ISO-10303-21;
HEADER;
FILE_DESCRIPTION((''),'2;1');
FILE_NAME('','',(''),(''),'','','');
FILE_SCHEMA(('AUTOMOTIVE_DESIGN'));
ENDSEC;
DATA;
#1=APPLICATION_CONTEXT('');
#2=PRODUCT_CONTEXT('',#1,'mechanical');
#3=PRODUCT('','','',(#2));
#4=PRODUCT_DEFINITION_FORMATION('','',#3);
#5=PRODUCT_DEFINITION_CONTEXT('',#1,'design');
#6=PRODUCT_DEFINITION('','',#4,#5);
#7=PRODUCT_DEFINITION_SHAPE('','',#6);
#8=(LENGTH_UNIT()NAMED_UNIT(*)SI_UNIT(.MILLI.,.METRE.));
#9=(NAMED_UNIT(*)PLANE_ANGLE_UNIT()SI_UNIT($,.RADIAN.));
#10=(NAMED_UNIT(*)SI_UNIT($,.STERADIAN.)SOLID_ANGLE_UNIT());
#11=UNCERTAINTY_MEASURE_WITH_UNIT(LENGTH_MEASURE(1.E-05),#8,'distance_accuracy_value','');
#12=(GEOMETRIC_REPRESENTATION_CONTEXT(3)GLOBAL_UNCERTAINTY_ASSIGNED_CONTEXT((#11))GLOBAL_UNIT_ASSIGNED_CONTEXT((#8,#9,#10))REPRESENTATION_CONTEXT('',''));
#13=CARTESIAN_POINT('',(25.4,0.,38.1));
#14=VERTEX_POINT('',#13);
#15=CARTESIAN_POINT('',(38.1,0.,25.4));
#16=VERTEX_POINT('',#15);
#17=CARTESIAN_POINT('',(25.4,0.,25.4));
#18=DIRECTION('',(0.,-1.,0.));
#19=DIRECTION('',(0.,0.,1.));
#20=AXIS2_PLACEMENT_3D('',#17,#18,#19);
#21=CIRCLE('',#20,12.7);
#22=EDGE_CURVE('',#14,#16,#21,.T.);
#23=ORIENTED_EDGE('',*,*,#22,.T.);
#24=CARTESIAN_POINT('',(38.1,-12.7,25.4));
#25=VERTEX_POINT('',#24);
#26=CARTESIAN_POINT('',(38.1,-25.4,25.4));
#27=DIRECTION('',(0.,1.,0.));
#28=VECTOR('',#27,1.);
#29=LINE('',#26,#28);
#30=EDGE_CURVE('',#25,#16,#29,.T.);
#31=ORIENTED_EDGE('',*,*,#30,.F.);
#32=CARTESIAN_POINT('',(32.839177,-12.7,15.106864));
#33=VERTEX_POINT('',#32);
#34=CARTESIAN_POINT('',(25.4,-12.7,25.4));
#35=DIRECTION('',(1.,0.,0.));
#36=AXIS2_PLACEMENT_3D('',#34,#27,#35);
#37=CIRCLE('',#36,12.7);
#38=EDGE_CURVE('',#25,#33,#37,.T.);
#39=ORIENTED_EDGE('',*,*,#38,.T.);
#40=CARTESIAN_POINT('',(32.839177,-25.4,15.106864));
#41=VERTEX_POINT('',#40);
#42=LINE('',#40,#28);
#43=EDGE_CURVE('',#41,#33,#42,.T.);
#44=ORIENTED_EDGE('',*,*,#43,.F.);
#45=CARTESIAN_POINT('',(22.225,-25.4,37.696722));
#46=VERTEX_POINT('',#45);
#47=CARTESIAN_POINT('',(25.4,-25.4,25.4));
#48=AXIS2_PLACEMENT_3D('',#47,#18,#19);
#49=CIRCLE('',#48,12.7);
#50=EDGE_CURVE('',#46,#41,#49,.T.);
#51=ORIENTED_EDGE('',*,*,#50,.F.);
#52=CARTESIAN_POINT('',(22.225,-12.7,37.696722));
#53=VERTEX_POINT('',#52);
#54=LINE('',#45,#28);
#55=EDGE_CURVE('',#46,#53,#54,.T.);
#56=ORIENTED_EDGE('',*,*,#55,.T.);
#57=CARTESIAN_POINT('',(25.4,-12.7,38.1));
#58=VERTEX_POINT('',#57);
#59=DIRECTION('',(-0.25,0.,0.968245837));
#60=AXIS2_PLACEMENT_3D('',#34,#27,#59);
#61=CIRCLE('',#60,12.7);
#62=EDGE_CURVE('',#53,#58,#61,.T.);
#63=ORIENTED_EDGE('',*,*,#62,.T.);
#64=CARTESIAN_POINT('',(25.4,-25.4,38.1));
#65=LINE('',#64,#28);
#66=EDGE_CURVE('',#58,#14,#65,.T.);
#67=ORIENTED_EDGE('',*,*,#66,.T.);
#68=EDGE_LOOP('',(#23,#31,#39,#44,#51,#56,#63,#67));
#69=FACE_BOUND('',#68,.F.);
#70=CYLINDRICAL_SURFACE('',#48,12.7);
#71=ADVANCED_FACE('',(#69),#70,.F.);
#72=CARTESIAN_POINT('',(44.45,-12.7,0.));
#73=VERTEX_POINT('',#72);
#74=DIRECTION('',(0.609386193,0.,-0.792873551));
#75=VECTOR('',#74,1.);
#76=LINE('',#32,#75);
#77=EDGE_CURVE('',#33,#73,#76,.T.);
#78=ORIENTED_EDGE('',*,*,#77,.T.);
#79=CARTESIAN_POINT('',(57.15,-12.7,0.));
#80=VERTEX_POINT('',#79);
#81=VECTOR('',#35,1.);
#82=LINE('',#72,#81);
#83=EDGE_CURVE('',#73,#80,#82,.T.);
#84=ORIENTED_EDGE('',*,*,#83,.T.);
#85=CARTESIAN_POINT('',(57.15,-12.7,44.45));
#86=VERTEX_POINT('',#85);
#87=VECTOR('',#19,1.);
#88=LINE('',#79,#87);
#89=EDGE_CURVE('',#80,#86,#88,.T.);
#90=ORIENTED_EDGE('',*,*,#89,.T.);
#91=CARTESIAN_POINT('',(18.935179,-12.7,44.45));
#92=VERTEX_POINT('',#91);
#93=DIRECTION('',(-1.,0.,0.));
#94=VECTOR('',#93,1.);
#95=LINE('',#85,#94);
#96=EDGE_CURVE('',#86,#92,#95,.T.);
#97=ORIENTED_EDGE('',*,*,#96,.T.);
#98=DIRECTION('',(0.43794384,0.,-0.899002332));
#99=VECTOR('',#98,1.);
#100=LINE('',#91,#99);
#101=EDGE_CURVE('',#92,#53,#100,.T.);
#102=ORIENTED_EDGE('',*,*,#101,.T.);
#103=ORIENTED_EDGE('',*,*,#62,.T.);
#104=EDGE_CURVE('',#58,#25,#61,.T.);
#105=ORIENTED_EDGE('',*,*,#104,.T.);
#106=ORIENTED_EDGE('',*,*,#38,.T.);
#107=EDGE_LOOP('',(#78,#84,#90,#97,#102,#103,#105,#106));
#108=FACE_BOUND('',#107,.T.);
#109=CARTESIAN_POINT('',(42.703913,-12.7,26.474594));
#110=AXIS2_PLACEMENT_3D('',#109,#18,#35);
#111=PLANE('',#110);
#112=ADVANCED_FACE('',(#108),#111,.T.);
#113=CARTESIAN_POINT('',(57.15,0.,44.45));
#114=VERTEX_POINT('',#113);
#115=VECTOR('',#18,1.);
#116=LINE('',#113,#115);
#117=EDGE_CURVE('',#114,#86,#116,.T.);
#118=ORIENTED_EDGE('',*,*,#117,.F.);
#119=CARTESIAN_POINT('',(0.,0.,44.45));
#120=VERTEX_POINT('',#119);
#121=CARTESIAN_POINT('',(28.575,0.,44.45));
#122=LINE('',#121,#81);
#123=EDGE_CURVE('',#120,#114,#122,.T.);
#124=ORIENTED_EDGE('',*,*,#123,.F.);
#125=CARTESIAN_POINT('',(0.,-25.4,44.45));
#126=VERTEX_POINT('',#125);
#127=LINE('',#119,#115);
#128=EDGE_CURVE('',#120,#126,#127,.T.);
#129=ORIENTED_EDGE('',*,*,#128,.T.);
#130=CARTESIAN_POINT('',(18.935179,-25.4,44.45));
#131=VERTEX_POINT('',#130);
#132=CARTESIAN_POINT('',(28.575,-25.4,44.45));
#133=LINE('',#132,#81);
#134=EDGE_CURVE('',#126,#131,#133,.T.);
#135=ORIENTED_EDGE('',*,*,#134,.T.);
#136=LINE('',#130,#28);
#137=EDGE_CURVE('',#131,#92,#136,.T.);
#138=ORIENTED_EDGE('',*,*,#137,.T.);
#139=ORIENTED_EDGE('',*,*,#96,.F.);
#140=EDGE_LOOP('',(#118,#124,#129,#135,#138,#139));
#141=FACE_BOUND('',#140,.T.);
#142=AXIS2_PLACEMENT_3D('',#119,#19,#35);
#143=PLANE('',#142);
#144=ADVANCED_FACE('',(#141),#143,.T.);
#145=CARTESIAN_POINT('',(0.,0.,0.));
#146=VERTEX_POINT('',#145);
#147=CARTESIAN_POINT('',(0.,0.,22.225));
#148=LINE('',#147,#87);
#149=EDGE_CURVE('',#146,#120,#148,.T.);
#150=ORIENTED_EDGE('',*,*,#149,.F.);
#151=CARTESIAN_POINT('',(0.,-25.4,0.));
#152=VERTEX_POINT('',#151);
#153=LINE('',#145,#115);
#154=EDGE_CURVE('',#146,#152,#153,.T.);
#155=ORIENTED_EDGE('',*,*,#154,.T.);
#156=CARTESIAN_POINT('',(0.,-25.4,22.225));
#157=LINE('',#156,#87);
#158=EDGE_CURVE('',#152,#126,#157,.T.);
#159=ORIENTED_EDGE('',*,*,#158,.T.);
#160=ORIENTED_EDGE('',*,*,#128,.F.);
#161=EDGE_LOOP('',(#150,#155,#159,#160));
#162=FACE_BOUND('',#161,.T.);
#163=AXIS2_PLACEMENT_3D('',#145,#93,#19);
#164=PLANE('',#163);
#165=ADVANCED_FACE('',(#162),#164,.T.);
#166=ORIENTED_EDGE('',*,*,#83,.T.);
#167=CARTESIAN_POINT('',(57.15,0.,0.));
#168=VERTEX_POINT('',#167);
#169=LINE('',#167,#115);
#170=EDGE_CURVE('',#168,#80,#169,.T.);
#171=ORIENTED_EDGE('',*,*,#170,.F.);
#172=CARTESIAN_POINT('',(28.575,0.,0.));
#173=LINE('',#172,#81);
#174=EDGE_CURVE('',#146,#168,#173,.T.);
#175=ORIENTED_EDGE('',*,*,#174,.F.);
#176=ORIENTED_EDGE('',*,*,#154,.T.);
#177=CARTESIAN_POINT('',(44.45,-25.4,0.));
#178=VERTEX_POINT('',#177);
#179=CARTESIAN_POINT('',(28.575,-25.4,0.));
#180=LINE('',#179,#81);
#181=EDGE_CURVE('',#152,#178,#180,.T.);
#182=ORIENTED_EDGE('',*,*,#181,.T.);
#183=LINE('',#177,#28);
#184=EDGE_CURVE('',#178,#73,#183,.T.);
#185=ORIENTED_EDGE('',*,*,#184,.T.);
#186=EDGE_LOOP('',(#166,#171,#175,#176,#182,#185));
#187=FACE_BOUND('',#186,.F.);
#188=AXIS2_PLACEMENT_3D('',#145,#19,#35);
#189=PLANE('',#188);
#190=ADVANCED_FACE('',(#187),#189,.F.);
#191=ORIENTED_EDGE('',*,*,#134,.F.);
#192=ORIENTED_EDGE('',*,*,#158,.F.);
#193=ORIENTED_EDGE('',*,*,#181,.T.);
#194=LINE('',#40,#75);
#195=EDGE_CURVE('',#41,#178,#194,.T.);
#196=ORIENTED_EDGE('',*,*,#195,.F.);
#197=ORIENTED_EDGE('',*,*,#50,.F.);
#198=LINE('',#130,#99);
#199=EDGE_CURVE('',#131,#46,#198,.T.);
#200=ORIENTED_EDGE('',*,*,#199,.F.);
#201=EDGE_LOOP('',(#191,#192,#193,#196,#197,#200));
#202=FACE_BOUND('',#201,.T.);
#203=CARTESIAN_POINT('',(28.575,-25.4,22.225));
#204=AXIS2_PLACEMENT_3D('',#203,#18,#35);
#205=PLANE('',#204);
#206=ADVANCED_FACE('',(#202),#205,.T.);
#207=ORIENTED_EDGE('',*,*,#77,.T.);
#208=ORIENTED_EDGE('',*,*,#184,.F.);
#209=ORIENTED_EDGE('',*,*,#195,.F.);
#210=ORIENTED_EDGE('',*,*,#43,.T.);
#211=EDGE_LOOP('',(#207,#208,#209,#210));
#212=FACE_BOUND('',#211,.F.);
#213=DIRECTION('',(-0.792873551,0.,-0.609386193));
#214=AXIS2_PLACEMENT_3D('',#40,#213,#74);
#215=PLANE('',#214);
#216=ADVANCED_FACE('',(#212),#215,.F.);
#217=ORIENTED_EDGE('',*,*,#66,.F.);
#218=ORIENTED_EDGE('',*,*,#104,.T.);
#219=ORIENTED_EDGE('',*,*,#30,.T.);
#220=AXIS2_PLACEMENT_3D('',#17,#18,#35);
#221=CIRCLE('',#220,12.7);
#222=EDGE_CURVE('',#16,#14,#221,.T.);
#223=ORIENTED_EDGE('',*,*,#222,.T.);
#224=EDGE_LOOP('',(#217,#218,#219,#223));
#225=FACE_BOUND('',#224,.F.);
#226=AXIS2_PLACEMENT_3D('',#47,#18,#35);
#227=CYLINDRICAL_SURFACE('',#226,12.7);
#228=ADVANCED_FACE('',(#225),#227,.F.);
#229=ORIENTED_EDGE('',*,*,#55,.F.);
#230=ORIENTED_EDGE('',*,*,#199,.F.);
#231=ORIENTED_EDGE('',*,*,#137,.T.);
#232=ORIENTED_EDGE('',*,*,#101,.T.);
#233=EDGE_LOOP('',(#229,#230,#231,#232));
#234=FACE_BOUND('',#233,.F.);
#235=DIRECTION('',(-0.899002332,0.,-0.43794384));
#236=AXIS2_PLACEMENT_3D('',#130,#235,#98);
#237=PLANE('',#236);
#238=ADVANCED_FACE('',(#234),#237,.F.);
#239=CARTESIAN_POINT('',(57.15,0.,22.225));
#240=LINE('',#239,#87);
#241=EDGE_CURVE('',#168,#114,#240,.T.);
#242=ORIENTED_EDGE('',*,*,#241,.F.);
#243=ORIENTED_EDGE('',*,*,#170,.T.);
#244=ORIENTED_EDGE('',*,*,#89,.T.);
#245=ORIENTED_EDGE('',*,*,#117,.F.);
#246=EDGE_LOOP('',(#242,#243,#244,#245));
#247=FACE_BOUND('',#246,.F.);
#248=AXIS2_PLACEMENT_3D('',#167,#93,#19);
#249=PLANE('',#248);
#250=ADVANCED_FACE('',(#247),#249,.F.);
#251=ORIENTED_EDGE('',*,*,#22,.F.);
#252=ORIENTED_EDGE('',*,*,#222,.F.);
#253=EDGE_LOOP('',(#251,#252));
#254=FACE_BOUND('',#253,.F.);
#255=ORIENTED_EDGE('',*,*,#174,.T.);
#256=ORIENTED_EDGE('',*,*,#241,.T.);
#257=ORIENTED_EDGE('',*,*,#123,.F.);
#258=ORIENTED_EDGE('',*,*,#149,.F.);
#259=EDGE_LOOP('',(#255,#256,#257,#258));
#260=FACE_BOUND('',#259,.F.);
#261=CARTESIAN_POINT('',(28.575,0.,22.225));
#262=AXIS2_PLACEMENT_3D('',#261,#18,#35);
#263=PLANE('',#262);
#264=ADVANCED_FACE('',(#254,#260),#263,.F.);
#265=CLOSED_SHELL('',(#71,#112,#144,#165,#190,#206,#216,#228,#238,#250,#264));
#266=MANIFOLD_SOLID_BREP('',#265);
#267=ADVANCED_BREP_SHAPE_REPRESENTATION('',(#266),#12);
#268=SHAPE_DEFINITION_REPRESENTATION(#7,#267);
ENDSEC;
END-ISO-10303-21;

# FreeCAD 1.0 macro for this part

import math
import FreeCAD as App
import Part
import Sketcher

V = App.Vector
Q = App.Units.Quantity


def add_polygon(sketch, points):
    """Adds a closed chain of lines whose ends are joined by coincident constraints."""
    first, n = sketch.GeometryCount, len(points)
    for a, b in zip(points, points[1:] + points[:1]):
        sketch.addGeometry(Part.LineSegment(App.Vector(*a, 0), App.Vector(*b, 0)), False)
    for i in range(n):
        sketch.addConstraint(Sketcher.Constraint("Coincident", first + i, 2, first + (i + 1) % n, 1))

doc = App.newDocument("Part")
body = doc.addObject("PartDesign::Body", "Body")

sketch1 = doc.addObject("Sketcher::SketchObject", "Sketch")
body.addObject(sketch1)
sketch1.AttachmentSupport = (doc.XZ_Plane, [""])
sketch1.MapMode = "FlatFace"
add_polygon(sketch1, [(0, 44), (0, 0), (57, 0), (57, 44)])
sketch1.addConstraint([
    Sketcher.Constraint("Vertical", 0),
    Sketcher.Constraint("Horizontal", 1),
    Sketcher.Constraint("Vertical", 2),
    Sketcher.Constraint("Horizontal", 3),
    Sketcher.Constraint("Coincident", 0, 2, -1, 1),
    Sketcher.Constraint("DistanceX", 1, 1, 1, 2, Q("2.25 in")),
    Sketcher.Constraint("DistanceY", 0, 2, 0, 1, Q("1.75 in")),
])
pad1 = doc.addObject("PartDesign::Pad", "Pad")
body.addObject(pad1)
pad1.Profile = sketch1
pad1.Length = Q("1 in")

sketch2 = doc.addObject("Sketcher::SketchObject", "Sketch001")
body.addObject(sketch2)
sketch2.AttachmentSupport = (doc.XZ_Plane, [""])
sketch2.MapMode = "FlatFace"
sketch2.AttachmentOffset = App.Placement(V(0, 0, 1 * 25.4), App.Rotation())
sketch2.addGeometry([
    Part.ArcOfCircle(Part.Circle(V(25, 25, 0), V(0, 0, 1), 13), math.radians(90), math.radians(360)),
    Part.ArcOfCircle(Part.Circle(V(25, 25, 0), V(0, 0, 1), 13), math.radians(0), math.radians(90)),
], False)
sketch2.addConstraint([
    Sketcher.Constraint("Tangent", 0, 1, 1, 2),
    Sketcher.Constraint("Coincident", 1, 1, 0, 2),
    Sketcher.Constraint("Horizontal", 0, 3, 1, 1),
    Sketcher.Constraint("Vertical", 1, 3, 0, 1),
    Sketcher.Constraint("Radius", 0, Q("0.5 in")),
    Sketcher.Constraint("DistanceX", -1, 1, 0, 3, Q("1 in")),
    Sketcher.Constraint("DistanceY", -1, 1, 0, 3, Q("1 in")),
])
pocket1 = doc.addObject("PartDesign::Pocket", "Pocket")
body.addObject(pocket1)
pocket1.Profile = sketch2
pocket1.Type = "ThroughAll"

sketch3 = doc.addObject("Sketcher::SketchObject", "Sketch002")
body.addObject(sketch3)
sketch3.AttachmentSupport = (doc.XZ_Plane, [""])
sketch3.MapMode = "FlatFace"
sketch3.AttachmentOffset = App.Placement(V(0, 0, 1 * 25.4), App.Rotation())
sketch3.addGeometry([
    Part.LineSegment(V(57.15, 44.45, 0), V(18.935179, 44.45, 0)),
    Part.LineSegment(V(18.935179, 44.45, 0), V(22.225, 37.696722, 0)),
    Part.ArcOfCircle(Part.Circle(V(25.4, 25.4, 0), V(0, 0, 1), 12.7), math.radians(0), math.radians(104.477512)),
    Part.ArcOfCircle(Part.Circle(V(25.4, 25.4, 0), V(0, 0, 1), 12.7), math.radians(-54.143162), math.radians(0)),
    Part.LineSegment(V(32.839177, 15.106864, 0), V(44.45, 0, 0)),
    Part.LineSegment(V(44.45, 0, 0), V(57.15, 0, 0)),
    Part.LineSegment(V(57.15, 0, 0), V(57.15, 44.45, 0)),
], False)
sketch3.addConstraint([
    Sketcher.Constraint("Coincident", 0, 2, 1, 1),
    Sketcher.Constraint("Coincident", 1, 2, 2, 2),
    Sketcher.Constraint("Tangent", 2, 1, 3, 2),
    Sketcher.Constraint("Coincident", 3, 1, 4, 1),
    Sketcher.Constraint("Coincident", 4, 2, 5, 1),
    Sketcher.Constraint("Coincident", 5, 2, 6, 1),
    Sketcher.Constraint("Coincident", 6, 2, 0, 1),
    Sketcher.Constraint("Horizontal", 0),
    Sketcher.Constraint("Horizontal", 5),
    Sketcher.Constraint("Vertical", 6),
    Sketcher.Constraint("Equal", 2, 3),
    Sketcher.Constraint("PointOnObject", 4, 2, -1),
    Sketcher.Constraint("Horizontal", 3, 3, 2, 1),
    Sketcher.Constraint("Radius", 2, Q("0.5 in")),
    Sketcher.Constraint("DistanceX", 5, 1, 5, 2, Q("0.5 in")),
    Sketcher.Constraint("DistanceX", -1, 1, 2, 3, Q("1 in")),
    Sketcher.Constraint("DistanceY", -1, 1, 2, 3, Q("1 in")),
    Sketcher.Constraint("DistanceY", 6, 1, 6, 2, Q("1.75 in")),
    Sketcher.Constraint("DistanceX", -1, 1, 4, 2, Q("1.75 in")),
    Sketcher.Constraint("DistanceX", -1, 1, 1, 2, Q("0.875 in")),
    Sketcher.Constraint("DistanceX", 0, 2, 0, 1, Q("38.214821 mm")),
    Sketcher.Constraint("Distance", 4, Q("19.053308 mm")),
])
pocket2 = doc.addObject("PartDesign::Pocket", "Pocket001")
body.addObject(pocket2)
pocket2.Profile = sketch3
pocket2.Length = Q("0.5 in")

doc.recompute()
